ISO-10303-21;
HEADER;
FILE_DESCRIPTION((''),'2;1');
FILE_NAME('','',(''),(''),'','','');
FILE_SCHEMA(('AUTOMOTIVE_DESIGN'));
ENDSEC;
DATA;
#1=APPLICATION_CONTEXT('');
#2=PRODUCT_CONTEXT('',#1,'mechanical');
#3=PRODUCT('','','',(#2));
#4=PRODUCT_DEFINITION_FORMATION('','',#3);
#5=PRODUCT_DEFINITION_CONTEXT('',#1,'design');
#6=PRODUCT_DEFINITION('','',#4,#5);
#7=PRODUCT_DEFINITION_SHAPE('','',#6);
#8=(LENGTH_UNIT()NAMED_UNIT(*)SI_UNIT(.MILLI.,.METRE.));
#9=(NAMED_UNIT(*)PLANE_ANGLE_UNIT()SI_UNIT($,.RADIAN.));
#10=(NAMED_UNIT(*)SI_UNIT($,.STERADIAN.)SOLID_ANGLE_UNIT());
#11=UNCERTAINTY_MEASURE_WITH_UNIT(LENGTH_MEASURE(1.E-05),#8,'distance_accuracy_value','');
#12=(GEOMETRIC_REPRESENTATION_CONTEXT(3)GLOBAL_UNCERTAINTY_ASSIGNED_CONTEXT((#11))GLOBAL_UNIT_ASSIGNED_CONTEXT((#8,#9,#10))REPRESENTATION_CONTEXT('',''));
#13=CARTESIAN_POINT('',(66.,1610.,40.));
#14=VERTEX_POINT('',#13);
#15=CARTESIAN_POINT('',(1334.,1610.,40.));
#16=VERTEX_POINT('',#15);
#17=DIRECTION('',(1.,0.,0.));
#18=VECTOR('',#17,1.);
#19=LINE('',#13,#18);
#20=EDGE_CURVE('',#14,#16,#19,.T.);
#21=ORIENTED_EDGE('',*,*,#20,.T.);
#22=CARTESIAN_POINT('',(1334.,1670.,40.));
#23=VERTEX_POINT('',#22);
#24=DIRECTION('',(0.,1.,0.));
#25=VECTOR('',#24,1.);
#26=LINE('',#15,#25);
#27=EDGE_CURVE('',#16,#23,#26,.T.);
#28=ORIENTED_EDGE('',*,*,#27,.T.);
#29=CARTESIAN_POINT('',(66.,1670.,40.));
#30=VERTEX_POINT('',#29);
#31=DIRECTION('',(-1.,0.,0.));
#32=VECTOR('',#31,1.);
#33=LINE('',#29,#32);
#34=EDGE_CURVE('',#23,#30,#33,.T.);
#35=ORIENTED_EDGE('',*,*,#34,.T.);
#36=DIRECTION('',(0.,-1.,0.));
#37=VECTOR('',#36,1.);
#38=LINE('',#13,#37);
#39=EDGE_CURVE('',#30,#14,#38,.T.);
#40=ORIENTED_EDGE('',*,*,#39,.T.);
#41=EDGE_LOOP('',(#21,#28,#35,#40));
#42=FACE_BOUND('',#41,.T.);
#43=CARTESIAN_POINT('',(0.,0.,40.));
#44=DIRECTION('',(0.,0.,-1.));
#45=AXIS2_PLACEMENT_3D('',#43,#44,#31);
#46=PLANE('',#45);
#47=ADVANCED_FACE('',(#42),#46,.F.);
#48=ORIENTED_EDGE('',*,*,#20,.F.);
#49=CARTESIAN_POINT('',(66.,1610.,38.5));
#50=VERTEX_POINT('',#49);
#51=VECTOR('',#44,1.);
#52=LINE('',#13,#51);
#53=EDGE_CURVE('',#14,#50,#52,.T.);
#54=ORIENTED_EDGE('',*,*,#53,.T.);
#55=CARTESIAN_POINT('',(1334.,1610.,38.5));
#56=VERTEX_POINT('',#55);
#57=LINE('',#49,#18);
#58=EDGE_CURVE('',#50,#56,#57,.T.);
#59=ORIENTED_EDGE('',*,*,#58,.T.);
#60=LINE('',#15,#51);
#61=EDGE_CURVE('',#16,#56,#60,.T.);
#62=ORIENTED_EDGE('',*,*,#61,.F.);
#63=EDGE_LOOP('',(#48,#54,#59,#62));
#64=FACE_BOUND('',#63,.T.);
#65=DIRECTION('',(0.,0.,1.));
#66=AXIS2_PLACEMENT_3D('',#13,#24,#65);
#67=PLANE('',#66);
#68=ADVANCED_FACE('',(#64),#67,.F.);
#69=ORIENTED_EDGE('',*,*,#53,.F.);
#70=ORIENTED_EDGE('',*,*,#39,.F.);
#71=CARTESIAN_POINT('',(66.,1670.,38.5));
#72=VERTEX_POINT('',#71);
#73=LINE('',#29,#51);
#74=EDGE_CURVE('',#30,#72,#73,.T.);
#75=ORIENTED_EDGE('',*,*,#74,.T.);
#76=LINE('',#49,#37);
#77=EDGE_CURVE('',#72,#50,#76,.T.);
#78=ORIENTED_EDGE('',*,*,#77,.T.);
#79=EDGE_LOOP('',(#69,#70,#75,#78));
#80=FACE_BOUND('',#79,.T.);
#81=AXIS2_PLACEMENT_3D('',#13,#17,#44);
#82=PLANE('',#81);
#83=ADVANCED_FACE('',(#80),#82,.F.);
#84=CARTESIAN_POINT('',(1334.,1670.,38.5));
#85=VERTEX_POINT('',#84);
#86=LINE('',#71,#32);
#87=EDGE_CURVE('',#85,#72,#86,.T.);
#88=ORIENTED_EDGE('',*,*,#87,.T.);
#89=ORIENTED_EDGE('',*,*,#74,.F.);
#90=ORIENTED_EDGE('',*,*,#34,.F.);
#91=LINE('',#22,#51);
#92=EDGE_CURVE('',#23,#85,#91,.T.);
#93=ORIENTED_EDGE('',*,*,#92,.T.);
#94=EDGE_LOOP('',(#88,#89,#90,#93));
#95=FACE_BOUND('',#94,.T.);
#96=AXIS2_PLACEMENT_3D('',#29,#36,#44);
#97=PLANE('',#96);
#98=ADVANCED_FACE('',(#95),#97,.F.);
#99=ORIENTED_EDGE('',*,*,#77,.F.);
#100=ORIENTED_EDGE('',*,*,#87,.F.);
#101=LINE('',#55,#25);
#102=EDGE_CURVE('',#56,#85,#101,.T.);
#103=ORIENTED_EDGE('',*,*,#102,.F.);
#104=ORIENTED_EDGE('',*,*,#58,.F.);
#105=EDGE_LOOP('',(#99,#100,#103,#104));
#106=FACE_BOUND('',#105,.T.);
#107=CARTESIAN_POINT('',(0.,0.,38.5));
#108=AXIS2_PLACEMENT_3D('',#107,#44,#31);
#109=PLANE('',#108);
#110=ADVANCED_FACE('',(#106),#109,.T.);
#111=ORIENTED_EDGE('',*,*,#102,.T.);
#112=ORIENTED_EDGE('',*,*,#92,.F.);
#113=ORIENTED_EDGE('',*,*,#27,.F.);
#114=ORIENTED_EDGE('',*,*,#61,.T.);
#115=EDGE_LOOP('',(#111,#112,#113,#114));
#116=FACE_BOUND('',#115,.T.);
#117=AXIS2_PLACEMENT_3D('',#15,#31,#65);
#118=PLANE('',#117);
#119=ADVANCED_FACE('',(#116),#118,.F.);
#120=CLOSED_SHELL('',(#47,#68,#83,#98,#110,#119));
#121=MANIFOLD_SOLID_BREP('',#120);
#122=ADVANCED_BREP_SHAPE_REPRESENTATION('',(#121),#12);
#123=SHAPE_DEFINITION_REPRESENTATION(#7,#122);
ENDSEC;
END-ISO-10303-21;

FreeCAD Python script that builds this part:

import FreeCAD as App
import Part
import Sketcher
from FreeCAD import Vector


def add_polygon(sketch, points):
    """Adds a closed chain of lines whose ends are joined by coincident constraints."""
    first, n = sketch.GeometryCount, len(points)
    for a, b in zip(points, points[1:] + points[:1]):
        sketch.addGeometry(Part.LineSegment(App.Vector(*a, 0), App.Vector(*b, 0)), False)
    for i in range(n):
        sketch.addConstraint(Sketcher.Constraint("Coincident", first + i, 2, first + (i + 1) % n, 1))

doc = App.newDocument("Part")
body = doc.addObject("PartDesign::Body", "Body")

# Sketch on XY plane
sketch1 = body.newObject("Sketcher::SketchObject", "Sketch")
sketch1.AttachmentSupport = (doc.getObject("XY_Plane"), [""])
sketch1.MapMode = "FlatFace"
sketch1.AttachmentOffset = App.Placement(Vector(0, 0, 38.5), App.Rotation())
add_polygon(sketch1, [(66, 1670), (66, 1610), (1334, 1610), (1334, 1670)])  # lines 0-3
sketch1.addConstraint(Sketcher.Constraint("Vertical", 0))
sketch1.addConstraint(Sketcher.Constraint("Horizontal", 1))
sketch1.addConstraint(Sketcher.Constraint("Vertical", 2))
sketch1.addConstraint(Sketcher.Constraint("Horizontal", 3))
sketch1.addConstraint(Sketcher.Constraint("DistanceX", 1, 1, 1, 2, 1268.0))
sketch1.addConstraint(Sketcher.Constraint("DistanceY", 0, 2, 0, 1, 60.0))
sketch1.addConstraint(Sketcher.Constraint("DistanceX", -1, 1, 0, 2, 66.0))
sketch1.addConstraint(Sketcher.Constraint("DistanceY", -1, 1, 0, 2, 1610.0))
pad1 = body.newObject("PartDesign::Pad", "Pad")
pad1.Profile = sketch1
pad1.Length = 1.5

doc.recompute()
